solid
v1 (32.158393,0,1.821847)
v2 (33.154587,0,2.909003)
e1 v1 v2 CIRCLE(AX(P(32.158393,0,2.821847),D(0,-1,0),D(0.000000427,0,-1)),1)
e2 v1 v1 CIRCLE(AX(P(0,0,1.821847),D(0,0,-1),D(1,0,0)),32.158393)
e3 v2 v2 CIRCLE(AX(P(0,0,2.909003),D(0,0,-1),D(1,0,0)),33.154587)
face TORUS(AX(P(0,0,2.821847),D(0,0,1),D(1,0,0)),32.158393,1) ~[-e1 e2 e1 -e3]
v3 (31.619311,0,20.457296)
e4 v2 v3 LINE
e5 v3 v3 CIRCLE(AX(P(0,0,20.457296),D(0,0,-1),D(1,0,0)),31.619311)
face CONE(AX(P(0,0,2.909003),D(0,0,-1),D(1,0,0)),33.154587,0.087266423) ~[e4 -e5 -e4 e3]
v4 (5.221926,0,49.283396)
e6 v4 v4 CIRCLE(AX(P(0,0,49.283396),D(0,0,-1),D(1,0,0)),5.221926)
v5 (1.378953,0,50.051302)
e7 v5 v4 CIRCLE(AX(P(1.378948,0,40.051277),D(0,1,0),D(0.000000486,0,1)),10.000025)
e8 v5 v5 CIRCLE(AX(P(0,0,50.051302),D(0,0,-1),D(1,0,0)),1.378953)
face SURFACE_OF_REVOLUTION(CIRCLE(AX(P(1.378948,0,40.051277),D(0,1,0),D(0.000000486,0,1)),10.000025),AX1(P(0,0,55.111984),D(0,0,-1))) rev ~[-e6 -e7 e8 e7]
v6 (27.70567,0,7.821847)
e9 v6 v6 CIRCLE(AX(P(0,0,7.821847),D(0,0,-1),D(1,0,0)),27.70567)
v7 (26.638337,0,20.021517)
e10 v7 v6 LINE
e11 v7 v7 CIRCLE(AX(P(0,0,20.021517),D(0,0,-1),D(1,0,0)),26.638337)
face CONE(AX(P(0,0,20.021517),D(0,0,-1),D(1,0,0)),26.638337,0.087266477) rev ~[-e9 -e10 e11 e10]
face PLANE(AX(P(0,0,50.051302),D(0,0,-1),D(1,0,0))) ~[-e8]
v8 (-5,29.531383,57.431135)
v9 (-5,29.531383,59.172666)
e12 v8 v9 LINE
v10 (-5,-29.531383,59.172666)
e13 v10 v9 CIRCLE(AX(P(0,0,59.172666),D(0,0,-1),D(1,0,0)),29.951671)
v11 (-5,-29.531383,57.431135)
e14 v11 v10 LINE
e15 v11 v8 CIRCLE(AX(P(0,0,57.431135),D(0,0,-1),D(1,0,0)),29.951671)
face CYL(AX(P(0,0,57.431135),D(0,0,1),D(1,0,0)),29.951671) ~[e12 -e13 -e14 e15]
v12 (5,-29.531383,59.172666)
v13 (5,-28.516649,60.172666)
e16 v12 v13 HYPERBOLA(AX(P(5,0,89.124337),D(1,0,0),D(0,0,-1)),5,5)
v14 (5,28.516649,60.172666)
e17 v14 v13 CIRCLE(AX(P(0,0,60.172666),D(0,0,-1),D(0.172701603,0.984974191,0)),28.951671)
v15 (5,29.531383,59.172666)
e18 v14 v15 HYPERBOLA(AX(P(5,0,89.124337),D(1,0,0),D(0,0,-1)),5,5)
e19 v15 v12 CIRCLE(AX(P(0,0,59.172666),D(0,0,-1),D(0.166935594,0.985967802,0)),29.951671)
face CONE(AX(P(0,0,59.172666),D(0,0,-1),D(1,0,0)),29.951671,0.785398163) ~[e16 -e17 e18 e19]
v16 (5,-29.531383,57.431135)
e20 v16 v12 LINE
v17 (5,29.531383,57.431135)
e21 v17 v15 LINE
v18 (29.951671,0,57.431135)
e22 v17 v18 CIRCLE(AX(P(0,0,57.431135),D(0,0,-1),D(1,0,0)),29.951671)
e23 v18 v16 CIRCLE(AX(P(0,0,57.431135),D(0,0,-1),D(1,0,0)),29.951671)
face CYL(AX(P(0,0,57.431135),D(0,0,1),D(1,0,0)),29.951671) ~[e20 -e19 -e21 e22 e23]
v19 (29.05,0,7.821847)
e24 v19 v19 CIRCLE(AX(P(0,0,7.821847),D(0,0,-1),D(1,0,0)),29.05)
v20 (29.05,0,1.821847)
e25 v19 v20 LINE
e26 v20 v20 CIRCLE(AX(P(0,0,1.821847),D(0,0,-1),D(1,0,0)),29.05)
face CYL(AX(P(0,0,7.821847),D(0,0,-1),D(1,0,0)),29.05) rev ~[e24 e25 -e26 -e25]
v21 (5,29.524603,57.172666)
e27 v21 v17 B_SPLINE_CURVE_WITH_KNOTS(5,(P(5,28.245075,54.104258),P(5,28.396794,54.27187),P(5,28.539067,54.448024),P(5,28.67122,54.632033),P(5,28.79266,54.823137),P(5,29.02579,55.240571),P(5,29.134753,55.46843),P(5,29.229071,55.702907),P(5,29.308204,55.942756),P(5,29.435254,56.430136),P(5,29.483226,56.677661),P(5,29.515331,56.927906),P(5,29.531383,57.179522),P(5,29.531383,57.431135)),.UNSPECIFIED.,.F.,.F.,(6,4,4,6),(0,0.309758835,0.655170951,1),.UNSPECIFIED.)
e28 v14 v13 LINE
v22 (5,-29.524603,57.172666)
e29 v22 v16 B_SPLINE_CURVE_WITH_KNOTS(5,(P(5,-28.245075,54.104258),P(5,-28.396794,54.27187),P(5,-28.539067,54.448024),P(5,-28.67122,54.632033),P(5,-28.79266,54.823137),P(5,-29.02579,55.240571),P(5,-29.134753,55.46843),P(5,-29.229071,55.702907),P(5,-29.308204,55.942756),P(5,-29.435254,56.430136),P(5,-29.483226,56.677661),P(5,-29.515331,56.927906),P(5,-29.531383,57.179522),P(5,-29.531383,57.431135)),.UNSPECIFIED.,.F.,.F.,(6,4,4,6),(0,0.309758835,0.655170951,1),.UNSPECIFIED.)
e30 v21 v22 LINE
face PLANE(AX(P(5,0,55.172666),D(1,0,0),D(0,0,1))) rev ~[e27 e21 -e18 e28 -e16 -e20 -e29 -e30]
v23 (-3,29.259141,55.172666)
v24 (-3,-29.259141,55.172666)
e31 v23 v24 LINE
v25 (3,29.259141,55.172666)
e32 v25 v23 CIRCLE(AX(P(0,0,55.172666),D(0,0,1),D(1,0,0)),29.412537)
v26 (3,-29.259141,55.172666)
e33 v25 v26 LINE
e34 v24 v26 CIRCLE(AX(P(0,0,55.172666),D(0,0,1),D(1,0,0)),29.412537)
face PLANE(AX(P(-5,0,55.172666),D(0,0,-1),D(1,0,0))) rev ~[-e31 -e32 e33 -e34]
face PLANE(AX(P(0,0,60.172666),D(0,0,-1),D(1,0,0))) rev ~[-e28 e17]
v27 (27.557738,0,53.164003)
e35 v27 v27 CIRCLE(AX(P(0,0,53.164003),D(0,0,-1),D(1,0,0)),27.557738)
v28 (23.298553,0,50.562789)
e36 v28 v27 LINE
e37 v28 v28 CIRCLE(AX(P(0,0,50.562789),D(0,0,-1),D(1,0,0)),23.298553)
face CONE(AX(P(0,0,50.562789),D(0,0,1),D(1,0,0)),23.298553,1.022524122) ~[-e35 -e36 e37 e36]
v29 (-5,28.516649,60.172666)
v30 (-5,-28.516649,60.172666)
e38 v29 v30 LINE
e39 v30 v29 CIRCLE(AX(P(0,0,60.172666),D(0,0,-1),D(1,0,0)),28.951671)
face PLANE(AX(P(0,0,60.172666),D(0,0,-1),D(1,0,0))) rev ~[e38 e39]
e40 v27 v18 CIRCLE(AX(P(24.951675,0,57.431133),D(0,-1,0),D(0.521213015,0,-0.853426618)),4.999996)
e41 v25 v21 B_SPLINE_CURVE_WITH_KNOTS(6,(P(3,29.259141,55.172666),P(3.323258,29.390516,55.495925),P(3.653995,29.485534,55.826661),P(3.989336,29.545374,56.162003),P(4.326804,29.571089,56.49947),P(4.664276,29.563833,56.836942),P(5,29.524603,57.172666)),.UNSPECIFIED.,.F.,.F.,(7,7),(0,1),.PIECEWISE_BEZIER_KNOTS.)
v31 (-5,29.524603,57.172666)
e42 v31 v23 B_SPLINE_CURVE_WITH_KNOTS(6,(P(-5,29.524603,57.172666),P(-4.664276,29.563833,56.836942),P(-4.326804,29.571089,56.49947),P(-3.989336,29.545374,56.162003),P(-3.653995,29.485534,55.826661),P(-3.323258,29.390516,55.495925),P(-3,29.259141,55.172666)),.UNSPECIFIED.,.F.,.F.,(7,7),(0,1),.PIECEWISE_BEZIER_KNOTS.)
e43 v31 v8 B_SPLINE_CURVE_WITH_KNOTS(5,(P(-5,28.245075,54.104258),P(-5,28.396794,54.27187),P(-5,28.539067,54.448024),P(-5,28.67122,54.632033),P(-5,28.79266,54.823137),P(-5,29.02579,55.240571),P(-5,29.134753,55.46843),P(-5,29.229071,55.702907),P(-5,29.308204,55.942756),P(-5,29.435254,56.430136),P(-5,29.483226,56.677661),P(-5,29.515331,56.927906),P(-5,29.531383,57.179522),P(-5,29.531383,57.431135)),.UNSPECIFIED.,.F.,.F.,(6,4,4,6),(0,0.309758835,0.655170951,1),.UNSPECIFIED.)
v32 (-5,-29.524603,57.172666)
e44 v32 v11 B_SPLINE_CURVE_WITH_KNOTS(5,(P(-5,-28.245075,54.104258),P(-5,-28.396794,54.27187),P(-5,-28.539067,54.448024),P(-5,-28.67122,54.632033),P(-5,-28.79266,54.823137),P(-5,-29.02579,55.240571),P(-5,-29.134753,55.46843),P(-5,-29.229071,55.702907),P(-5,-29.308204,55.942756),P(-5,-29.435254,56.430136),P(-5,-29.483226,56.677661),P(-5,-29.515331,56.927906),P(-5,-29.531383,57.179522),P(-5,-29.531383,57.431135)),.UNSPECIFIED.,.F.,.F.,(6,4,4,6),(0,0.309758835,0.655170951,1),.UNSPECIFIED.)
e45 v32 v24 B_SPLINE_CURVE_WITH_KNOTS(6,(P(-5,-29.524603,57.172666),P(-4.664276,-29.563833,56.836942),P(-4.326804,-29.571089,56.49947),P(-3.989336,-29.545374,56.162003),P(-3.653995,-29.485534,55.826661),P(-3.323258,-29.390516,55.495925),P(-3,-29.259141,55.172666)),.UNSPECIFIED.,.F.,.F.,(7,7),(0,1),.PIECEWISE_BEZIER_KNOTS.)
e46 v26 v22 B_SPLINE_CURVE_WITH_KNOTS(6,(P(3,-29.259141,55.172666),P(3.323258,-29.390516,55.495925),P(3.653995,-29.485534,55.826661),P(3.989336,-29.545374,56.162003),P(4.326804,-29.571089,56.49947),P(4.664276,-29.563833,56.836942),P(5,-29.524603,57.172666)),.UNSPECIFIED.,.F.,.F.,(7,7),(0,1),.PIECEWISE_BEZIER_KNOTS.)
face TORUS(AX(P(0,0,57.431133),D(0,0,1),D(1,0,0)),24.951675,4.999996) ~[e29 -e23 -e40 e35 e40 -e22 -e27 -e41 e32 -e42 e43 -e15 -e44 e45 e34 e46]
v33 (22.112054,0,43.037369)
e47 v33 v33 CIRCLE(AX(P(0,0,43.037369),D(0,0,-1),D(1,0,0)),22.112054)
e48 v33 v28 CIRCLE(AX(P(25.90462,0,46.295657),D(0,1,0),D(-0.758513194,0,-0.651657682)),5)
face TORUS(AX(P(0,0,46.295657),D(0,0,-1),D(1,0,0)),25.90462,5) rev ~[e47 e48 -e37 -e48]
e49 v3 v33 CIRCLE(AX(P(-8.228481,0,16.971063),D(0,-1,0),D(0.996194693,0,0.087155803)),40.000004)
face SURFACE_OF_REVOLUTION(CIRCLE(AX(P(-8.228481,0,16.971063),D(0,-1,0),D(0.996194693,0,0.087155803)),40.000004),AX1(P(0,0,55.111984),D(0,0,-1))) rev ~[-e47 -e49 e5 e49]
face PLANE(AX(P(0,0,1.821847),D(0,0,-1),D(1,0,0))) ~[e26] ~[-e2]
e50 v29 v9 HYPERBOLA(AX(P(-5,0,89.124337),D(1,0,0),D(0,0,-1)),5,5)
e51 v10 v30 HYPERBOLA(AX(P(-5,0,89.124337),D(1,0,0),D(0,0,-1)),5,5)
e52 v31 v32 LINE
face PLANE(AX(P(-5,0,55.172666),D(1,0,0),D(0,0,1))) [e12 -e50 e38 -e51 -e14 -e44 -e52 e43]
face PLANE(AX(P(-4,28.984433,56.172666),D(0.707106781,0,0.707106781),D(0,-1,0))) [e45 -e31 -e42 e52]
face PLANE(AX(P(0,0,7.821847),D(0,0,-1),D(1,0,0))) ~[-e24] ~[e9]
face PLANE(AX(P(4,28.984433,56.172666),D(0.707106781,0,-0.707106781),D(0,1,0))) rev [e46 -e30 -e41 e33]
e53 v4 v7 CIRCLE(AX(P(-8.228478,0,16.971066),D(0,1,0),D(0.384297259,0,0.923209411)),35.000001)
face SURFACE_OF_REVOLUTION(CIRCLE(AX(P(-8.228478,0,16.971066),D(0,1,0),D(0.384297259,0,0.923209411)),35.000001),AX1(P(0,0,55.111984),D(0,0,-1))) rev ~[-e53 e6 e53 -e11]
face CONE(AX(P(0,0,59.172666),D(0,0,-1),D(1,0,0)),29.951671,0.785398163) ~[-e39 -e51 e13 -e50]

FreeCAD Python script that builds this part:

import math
import FreeCAD as App
import Part
import Sketcher
from FreeCAD import Vector
Q = App.Units.Quantity


def edges_at(feature, points):
    """Names of the edges that pass closest to the given points."""
    edges = feature.Shape.Edges
    near = lambda p: min(range(len(edges)), key=lambda i: edges[i].distToShape(Part.Vertex(*p))[0])
    return sorted({f"Edge{near(p) + 1}" for p in points})


def add_polygon(sketch, points):
    """Adds a closed chain of lines whose ends are joined by coincident constraints."""
    first, n = sketch.GeometryCount, len(points)
    for a, b in zip(points, points[1:] + points[:1]):
        sketch.addGeometry(Part.LineSegment(App.Vector(*a, 0), App.Vector(*b, 0)), False)
    for i in range(n):
        sketch.addConstraint(Sketcher.Constraint("Coincident", first + i, 2, first + (i + 1) % n, 1))

doc = App.newDocument("Part")
body = doc.addObject("PartDesign::Body", "Body")

sketch1 = body.newObject("Sketcher::SketchObject", "Sketch")
sketch1.AttachmentSupport = (doc.getObject("XZ_Plane"), [""])
sketch1.MapMode = "FlatFace"
sketch1.addGeometry([
    Part.ArcOfCircle(Part.Circle(Vector(-8.228478, 16.971066, 0), Vector(0, 0, 1), 35.000001), math.radians(5), math.radians(67.39988)),
    Part.LineSegment(Vector(26.638337, 20.021517, 0), Vector(27.70567, 7.821847, 0)),
    Part.LineSegment(Vector(27.70567, 7.821847, 0), Vector(29.05, 7.821847, 0)),
    Part.LineSegment(Vector(29.05, 7.821847, 0), Vector(29.05, 1.821847, 0)),
    Part.LineSegment(Vector(29.05, 1.821847, 0), Vector(32.158393, 1.821847, 0)),
    Part.ArcOfCircle(Part.Circle(Vector(32.158393, 2.821847, 0), Vector(0, 0, 1), 1), math.radians(-89.999976), math.radians(5.000029)),
    Part.LineSegment(Vector(33.154587, 2.909003, 0), Vector(31.619311, 20.457296, 0)),
    Part.ArcOfCircle(Part.Circle(Vector(-8.228481, 16.971063, 0), Vector(0, 0, 1), 40.000004), math.radians(5.000003), math.radians(40.666692)),
    Part.ArcOfCircle(Part.Circle(Vector(25.90462, 46.295657, 0), Vector(0, 0, 1), 5), math.radians(121.413678), math.radians(220.666701)),
    Part.LineSegment(Vector(23.298553, 50.562789, 0), Vector(27.557738, 53.164003, 0)),
    Part.ArcOfCircle(Part.Circle(Vector(24.951675, 57.431133, 0), Vector(0, 0, 1), 4.999996), math.radians(-58.586347), math.radians(0.000027)),
    Part.LineSegment(Vector(29.951671, 57.431135, 0), Vector(29.951671, 59.172666, 0)),
    Part.LineSegment(Vector(29.951671, 59.172666, 0), Vector(28.951671, 60.172666, 0)),
    Part.LineSegment(Vector(28.951671, 60.172666, 0), Vector(0, 60.172666, 0)),
    Part.LineSegment(Vector(0, 60.172666, 0), Vector(0, 50.051302, 0)),
    Part.LineSegment(Vector(0, 50.051302, 0), Vector(1.378953, 50.051302, 0)),
    Part.ArcOfCircle(Part.Circle(Vector(1.378948, 40.051277, 0), Vector(0, 0, 1), 10.000025), math.radians(67.399907), math.radians(89.999972)),
], False)
sketch1.addConstraint([
    Sketcher.Constraint("Tangent", 0, 1, 1, 1),
    Sketcher.Constraint("Coincident", 1, 2, 2, 1),
    Sketcher.Constraint("Coincident", 2, 2, 3, 1),
    Sketcher.Constraint("Coincident", 3, 2, 4, 1),
    Sketcher.Constraint("Tangent", 4, 2, 5, 1),
    Sketcher.Constraint("Tangent", 5, 2, 6, 1),
    Sketcher.Constraint("Tangent", 6, 2, 7, 1),
    Sketcher.Constraint("Tangent", 7, 2, 8, 2),
    Sketcher.Constraint("Tangent", 8, 1, 9, 1),
    Sketcher.Constraint("Tangent", 9, 2, 10, 1),
    Sketcher.Constraint("Tangent", 10, 2, 11, 1),
    Sketcher.Constraint("Coincident", 11, 2, 12, 1),
    Sketcher.Constraint("Coincident", 12, 2, 13, 1),
    Sketcher.Constraint("Coincident", 13, 2, 14, 1),
    Sketcher.Constraint("Coincident", 14, 2, 15, 1),
    Sketcher.Constraint("Tangent", 15, 2, 16, 2),
    Sketcher.Constraint("Tangent", 16, 1, 0, 2),
    Sketcher.Constraint("Horizontal", 2),
    Sketcher.Constraint("Vertical", 3),
    Sketcher.Constraint("Horizontal", 4),
    Sketcher.Constraint("Vertical", 11),
    Sketcher.Constraint("Horizontal", 13),
    Sketcher.Constraint("Vertical", 14),
    Sketcher.Constraint("Horizontal", 15),
    Sketcher.Constraint("Coincident", 7, 3, 0, 3),
    Sketcher.Constraint("PointOnObject", 13, 2, -2),
    Sketcher.Constraint("Parallel", 1, 6),
    Sketcher.Constraint("Radius", 0, Q("35.000001 mm")),
    Sketcher.Constraint("Radius", 5, Q("1 mm")),
    Sketcher.Constraint("Radius", 8, Q("5 mm")),
    Sketcher.Constraint("DistanceY", 3, 2, 3, 1, Q("6 mm")),
    Sketcher.Constraint("Angle", 1, Q("-84.999999 deg")),
    Sketcher.Constraint("Angle", 12, Q("135 deg")),
    Sketcher.Constraint("DistanceX", 12, 2, 11, 2, Q("1 mm")),
    Sketcher.Constraint("DistanceX", -1, 1, 2, 2, Q("29.05 mm")),
    Sketcher.Constraint("Radius", 7, Q("40.000004 mm")),
    Sketcher.Constraint("Radius", 10, Q("4.999996 mm")),
    Sketcher.Constraint("Radius", 16, Q("10.000025 mm")),
    Sketcher.Constraint("DistanceX", 2, 1, 2, 2, Q("1.34433 mm")),
    Sketcher.Constraint("DistanceX", 13, 2, 13, 1, Q("28.951671 mm")),
    Sketcher.Constraint("DistanceY", 11, 1, 11, 2, Q("1.741531 mm")),
    Sketcher.Constraint("DistanceX", 0, 3, 8, 3, Q("34.133098 mm")),
    Sketcher.Constraint("DistanceX", 7, 2, 8, 1, Q("1.186499 mm")),
    Sketcher.Constraint("DistanceX", 15, 2, 7, 2, Q("20.733101 mm")),
    Sketcher.Constraint("Distance", 1, Q("12.246271 mm")),
    Sketcher.Constraint("DistanceY", -1, 1, 7, 2, Q("43.037369 mm")),
])
revolution = body.newObject("PartDesign::Revolution", "Revolution")
revolution.Profile = sketch1
revolution.ReferenceAxis = (sketch1, ["V_Axis"])
revolution.Angle = 360

sketch2 = body.newObject("Sketcher::SketchObject", "Sketch001")
sketch2.AttachmentSupport = (doc.getObject("XZ_Plane"), [""])
sketch2.MapMode = "FlatFace"
add_polygon(sketch2, [(-5, 65.85675), (-5, 55.172666), (5, 55.172666), (5, 65.85675)])
sketch2.addConstraint([
    Sketcher.Constraint("Vertical", 0),
    Sketcher.Constraint("Horizontal", 1),
    Sketcher.Constraint("Vertical", 2),
    Sketcher.Constraint("Horizontal", 3),
    Sketcher.Constraint("DistanceX", 1, 1, 1, 2, Q("10 mm")),
    Sketcher.Constraint("DistanceX", 0, 2, -1, 1, Q("5 mm")),
    Sketcher.Constraint("DistanceY", 0, 2, 0, 1, Q("10.684083 mm")),
    Sketcher.Constraint("DistanceY", -1, 1, 2, 2, Q("65.85675 mm")),
])
pocket1 = body.newObject("PartDesign::Pocket", "Pocket")
pocket1.Profile = sketch2
pocket1.Length = 100
pocket1.Midplane = True
doc.recompute()

chamfer = body.newObject("PartDesign::Chamfer", "Chamfer")
chamfer.Base = (pocket1, edges_at(pocket1, [(-5, 0, 55.173), (5, 0, 55.173)]))
chamfer.Size = 2

doc.recompute()
